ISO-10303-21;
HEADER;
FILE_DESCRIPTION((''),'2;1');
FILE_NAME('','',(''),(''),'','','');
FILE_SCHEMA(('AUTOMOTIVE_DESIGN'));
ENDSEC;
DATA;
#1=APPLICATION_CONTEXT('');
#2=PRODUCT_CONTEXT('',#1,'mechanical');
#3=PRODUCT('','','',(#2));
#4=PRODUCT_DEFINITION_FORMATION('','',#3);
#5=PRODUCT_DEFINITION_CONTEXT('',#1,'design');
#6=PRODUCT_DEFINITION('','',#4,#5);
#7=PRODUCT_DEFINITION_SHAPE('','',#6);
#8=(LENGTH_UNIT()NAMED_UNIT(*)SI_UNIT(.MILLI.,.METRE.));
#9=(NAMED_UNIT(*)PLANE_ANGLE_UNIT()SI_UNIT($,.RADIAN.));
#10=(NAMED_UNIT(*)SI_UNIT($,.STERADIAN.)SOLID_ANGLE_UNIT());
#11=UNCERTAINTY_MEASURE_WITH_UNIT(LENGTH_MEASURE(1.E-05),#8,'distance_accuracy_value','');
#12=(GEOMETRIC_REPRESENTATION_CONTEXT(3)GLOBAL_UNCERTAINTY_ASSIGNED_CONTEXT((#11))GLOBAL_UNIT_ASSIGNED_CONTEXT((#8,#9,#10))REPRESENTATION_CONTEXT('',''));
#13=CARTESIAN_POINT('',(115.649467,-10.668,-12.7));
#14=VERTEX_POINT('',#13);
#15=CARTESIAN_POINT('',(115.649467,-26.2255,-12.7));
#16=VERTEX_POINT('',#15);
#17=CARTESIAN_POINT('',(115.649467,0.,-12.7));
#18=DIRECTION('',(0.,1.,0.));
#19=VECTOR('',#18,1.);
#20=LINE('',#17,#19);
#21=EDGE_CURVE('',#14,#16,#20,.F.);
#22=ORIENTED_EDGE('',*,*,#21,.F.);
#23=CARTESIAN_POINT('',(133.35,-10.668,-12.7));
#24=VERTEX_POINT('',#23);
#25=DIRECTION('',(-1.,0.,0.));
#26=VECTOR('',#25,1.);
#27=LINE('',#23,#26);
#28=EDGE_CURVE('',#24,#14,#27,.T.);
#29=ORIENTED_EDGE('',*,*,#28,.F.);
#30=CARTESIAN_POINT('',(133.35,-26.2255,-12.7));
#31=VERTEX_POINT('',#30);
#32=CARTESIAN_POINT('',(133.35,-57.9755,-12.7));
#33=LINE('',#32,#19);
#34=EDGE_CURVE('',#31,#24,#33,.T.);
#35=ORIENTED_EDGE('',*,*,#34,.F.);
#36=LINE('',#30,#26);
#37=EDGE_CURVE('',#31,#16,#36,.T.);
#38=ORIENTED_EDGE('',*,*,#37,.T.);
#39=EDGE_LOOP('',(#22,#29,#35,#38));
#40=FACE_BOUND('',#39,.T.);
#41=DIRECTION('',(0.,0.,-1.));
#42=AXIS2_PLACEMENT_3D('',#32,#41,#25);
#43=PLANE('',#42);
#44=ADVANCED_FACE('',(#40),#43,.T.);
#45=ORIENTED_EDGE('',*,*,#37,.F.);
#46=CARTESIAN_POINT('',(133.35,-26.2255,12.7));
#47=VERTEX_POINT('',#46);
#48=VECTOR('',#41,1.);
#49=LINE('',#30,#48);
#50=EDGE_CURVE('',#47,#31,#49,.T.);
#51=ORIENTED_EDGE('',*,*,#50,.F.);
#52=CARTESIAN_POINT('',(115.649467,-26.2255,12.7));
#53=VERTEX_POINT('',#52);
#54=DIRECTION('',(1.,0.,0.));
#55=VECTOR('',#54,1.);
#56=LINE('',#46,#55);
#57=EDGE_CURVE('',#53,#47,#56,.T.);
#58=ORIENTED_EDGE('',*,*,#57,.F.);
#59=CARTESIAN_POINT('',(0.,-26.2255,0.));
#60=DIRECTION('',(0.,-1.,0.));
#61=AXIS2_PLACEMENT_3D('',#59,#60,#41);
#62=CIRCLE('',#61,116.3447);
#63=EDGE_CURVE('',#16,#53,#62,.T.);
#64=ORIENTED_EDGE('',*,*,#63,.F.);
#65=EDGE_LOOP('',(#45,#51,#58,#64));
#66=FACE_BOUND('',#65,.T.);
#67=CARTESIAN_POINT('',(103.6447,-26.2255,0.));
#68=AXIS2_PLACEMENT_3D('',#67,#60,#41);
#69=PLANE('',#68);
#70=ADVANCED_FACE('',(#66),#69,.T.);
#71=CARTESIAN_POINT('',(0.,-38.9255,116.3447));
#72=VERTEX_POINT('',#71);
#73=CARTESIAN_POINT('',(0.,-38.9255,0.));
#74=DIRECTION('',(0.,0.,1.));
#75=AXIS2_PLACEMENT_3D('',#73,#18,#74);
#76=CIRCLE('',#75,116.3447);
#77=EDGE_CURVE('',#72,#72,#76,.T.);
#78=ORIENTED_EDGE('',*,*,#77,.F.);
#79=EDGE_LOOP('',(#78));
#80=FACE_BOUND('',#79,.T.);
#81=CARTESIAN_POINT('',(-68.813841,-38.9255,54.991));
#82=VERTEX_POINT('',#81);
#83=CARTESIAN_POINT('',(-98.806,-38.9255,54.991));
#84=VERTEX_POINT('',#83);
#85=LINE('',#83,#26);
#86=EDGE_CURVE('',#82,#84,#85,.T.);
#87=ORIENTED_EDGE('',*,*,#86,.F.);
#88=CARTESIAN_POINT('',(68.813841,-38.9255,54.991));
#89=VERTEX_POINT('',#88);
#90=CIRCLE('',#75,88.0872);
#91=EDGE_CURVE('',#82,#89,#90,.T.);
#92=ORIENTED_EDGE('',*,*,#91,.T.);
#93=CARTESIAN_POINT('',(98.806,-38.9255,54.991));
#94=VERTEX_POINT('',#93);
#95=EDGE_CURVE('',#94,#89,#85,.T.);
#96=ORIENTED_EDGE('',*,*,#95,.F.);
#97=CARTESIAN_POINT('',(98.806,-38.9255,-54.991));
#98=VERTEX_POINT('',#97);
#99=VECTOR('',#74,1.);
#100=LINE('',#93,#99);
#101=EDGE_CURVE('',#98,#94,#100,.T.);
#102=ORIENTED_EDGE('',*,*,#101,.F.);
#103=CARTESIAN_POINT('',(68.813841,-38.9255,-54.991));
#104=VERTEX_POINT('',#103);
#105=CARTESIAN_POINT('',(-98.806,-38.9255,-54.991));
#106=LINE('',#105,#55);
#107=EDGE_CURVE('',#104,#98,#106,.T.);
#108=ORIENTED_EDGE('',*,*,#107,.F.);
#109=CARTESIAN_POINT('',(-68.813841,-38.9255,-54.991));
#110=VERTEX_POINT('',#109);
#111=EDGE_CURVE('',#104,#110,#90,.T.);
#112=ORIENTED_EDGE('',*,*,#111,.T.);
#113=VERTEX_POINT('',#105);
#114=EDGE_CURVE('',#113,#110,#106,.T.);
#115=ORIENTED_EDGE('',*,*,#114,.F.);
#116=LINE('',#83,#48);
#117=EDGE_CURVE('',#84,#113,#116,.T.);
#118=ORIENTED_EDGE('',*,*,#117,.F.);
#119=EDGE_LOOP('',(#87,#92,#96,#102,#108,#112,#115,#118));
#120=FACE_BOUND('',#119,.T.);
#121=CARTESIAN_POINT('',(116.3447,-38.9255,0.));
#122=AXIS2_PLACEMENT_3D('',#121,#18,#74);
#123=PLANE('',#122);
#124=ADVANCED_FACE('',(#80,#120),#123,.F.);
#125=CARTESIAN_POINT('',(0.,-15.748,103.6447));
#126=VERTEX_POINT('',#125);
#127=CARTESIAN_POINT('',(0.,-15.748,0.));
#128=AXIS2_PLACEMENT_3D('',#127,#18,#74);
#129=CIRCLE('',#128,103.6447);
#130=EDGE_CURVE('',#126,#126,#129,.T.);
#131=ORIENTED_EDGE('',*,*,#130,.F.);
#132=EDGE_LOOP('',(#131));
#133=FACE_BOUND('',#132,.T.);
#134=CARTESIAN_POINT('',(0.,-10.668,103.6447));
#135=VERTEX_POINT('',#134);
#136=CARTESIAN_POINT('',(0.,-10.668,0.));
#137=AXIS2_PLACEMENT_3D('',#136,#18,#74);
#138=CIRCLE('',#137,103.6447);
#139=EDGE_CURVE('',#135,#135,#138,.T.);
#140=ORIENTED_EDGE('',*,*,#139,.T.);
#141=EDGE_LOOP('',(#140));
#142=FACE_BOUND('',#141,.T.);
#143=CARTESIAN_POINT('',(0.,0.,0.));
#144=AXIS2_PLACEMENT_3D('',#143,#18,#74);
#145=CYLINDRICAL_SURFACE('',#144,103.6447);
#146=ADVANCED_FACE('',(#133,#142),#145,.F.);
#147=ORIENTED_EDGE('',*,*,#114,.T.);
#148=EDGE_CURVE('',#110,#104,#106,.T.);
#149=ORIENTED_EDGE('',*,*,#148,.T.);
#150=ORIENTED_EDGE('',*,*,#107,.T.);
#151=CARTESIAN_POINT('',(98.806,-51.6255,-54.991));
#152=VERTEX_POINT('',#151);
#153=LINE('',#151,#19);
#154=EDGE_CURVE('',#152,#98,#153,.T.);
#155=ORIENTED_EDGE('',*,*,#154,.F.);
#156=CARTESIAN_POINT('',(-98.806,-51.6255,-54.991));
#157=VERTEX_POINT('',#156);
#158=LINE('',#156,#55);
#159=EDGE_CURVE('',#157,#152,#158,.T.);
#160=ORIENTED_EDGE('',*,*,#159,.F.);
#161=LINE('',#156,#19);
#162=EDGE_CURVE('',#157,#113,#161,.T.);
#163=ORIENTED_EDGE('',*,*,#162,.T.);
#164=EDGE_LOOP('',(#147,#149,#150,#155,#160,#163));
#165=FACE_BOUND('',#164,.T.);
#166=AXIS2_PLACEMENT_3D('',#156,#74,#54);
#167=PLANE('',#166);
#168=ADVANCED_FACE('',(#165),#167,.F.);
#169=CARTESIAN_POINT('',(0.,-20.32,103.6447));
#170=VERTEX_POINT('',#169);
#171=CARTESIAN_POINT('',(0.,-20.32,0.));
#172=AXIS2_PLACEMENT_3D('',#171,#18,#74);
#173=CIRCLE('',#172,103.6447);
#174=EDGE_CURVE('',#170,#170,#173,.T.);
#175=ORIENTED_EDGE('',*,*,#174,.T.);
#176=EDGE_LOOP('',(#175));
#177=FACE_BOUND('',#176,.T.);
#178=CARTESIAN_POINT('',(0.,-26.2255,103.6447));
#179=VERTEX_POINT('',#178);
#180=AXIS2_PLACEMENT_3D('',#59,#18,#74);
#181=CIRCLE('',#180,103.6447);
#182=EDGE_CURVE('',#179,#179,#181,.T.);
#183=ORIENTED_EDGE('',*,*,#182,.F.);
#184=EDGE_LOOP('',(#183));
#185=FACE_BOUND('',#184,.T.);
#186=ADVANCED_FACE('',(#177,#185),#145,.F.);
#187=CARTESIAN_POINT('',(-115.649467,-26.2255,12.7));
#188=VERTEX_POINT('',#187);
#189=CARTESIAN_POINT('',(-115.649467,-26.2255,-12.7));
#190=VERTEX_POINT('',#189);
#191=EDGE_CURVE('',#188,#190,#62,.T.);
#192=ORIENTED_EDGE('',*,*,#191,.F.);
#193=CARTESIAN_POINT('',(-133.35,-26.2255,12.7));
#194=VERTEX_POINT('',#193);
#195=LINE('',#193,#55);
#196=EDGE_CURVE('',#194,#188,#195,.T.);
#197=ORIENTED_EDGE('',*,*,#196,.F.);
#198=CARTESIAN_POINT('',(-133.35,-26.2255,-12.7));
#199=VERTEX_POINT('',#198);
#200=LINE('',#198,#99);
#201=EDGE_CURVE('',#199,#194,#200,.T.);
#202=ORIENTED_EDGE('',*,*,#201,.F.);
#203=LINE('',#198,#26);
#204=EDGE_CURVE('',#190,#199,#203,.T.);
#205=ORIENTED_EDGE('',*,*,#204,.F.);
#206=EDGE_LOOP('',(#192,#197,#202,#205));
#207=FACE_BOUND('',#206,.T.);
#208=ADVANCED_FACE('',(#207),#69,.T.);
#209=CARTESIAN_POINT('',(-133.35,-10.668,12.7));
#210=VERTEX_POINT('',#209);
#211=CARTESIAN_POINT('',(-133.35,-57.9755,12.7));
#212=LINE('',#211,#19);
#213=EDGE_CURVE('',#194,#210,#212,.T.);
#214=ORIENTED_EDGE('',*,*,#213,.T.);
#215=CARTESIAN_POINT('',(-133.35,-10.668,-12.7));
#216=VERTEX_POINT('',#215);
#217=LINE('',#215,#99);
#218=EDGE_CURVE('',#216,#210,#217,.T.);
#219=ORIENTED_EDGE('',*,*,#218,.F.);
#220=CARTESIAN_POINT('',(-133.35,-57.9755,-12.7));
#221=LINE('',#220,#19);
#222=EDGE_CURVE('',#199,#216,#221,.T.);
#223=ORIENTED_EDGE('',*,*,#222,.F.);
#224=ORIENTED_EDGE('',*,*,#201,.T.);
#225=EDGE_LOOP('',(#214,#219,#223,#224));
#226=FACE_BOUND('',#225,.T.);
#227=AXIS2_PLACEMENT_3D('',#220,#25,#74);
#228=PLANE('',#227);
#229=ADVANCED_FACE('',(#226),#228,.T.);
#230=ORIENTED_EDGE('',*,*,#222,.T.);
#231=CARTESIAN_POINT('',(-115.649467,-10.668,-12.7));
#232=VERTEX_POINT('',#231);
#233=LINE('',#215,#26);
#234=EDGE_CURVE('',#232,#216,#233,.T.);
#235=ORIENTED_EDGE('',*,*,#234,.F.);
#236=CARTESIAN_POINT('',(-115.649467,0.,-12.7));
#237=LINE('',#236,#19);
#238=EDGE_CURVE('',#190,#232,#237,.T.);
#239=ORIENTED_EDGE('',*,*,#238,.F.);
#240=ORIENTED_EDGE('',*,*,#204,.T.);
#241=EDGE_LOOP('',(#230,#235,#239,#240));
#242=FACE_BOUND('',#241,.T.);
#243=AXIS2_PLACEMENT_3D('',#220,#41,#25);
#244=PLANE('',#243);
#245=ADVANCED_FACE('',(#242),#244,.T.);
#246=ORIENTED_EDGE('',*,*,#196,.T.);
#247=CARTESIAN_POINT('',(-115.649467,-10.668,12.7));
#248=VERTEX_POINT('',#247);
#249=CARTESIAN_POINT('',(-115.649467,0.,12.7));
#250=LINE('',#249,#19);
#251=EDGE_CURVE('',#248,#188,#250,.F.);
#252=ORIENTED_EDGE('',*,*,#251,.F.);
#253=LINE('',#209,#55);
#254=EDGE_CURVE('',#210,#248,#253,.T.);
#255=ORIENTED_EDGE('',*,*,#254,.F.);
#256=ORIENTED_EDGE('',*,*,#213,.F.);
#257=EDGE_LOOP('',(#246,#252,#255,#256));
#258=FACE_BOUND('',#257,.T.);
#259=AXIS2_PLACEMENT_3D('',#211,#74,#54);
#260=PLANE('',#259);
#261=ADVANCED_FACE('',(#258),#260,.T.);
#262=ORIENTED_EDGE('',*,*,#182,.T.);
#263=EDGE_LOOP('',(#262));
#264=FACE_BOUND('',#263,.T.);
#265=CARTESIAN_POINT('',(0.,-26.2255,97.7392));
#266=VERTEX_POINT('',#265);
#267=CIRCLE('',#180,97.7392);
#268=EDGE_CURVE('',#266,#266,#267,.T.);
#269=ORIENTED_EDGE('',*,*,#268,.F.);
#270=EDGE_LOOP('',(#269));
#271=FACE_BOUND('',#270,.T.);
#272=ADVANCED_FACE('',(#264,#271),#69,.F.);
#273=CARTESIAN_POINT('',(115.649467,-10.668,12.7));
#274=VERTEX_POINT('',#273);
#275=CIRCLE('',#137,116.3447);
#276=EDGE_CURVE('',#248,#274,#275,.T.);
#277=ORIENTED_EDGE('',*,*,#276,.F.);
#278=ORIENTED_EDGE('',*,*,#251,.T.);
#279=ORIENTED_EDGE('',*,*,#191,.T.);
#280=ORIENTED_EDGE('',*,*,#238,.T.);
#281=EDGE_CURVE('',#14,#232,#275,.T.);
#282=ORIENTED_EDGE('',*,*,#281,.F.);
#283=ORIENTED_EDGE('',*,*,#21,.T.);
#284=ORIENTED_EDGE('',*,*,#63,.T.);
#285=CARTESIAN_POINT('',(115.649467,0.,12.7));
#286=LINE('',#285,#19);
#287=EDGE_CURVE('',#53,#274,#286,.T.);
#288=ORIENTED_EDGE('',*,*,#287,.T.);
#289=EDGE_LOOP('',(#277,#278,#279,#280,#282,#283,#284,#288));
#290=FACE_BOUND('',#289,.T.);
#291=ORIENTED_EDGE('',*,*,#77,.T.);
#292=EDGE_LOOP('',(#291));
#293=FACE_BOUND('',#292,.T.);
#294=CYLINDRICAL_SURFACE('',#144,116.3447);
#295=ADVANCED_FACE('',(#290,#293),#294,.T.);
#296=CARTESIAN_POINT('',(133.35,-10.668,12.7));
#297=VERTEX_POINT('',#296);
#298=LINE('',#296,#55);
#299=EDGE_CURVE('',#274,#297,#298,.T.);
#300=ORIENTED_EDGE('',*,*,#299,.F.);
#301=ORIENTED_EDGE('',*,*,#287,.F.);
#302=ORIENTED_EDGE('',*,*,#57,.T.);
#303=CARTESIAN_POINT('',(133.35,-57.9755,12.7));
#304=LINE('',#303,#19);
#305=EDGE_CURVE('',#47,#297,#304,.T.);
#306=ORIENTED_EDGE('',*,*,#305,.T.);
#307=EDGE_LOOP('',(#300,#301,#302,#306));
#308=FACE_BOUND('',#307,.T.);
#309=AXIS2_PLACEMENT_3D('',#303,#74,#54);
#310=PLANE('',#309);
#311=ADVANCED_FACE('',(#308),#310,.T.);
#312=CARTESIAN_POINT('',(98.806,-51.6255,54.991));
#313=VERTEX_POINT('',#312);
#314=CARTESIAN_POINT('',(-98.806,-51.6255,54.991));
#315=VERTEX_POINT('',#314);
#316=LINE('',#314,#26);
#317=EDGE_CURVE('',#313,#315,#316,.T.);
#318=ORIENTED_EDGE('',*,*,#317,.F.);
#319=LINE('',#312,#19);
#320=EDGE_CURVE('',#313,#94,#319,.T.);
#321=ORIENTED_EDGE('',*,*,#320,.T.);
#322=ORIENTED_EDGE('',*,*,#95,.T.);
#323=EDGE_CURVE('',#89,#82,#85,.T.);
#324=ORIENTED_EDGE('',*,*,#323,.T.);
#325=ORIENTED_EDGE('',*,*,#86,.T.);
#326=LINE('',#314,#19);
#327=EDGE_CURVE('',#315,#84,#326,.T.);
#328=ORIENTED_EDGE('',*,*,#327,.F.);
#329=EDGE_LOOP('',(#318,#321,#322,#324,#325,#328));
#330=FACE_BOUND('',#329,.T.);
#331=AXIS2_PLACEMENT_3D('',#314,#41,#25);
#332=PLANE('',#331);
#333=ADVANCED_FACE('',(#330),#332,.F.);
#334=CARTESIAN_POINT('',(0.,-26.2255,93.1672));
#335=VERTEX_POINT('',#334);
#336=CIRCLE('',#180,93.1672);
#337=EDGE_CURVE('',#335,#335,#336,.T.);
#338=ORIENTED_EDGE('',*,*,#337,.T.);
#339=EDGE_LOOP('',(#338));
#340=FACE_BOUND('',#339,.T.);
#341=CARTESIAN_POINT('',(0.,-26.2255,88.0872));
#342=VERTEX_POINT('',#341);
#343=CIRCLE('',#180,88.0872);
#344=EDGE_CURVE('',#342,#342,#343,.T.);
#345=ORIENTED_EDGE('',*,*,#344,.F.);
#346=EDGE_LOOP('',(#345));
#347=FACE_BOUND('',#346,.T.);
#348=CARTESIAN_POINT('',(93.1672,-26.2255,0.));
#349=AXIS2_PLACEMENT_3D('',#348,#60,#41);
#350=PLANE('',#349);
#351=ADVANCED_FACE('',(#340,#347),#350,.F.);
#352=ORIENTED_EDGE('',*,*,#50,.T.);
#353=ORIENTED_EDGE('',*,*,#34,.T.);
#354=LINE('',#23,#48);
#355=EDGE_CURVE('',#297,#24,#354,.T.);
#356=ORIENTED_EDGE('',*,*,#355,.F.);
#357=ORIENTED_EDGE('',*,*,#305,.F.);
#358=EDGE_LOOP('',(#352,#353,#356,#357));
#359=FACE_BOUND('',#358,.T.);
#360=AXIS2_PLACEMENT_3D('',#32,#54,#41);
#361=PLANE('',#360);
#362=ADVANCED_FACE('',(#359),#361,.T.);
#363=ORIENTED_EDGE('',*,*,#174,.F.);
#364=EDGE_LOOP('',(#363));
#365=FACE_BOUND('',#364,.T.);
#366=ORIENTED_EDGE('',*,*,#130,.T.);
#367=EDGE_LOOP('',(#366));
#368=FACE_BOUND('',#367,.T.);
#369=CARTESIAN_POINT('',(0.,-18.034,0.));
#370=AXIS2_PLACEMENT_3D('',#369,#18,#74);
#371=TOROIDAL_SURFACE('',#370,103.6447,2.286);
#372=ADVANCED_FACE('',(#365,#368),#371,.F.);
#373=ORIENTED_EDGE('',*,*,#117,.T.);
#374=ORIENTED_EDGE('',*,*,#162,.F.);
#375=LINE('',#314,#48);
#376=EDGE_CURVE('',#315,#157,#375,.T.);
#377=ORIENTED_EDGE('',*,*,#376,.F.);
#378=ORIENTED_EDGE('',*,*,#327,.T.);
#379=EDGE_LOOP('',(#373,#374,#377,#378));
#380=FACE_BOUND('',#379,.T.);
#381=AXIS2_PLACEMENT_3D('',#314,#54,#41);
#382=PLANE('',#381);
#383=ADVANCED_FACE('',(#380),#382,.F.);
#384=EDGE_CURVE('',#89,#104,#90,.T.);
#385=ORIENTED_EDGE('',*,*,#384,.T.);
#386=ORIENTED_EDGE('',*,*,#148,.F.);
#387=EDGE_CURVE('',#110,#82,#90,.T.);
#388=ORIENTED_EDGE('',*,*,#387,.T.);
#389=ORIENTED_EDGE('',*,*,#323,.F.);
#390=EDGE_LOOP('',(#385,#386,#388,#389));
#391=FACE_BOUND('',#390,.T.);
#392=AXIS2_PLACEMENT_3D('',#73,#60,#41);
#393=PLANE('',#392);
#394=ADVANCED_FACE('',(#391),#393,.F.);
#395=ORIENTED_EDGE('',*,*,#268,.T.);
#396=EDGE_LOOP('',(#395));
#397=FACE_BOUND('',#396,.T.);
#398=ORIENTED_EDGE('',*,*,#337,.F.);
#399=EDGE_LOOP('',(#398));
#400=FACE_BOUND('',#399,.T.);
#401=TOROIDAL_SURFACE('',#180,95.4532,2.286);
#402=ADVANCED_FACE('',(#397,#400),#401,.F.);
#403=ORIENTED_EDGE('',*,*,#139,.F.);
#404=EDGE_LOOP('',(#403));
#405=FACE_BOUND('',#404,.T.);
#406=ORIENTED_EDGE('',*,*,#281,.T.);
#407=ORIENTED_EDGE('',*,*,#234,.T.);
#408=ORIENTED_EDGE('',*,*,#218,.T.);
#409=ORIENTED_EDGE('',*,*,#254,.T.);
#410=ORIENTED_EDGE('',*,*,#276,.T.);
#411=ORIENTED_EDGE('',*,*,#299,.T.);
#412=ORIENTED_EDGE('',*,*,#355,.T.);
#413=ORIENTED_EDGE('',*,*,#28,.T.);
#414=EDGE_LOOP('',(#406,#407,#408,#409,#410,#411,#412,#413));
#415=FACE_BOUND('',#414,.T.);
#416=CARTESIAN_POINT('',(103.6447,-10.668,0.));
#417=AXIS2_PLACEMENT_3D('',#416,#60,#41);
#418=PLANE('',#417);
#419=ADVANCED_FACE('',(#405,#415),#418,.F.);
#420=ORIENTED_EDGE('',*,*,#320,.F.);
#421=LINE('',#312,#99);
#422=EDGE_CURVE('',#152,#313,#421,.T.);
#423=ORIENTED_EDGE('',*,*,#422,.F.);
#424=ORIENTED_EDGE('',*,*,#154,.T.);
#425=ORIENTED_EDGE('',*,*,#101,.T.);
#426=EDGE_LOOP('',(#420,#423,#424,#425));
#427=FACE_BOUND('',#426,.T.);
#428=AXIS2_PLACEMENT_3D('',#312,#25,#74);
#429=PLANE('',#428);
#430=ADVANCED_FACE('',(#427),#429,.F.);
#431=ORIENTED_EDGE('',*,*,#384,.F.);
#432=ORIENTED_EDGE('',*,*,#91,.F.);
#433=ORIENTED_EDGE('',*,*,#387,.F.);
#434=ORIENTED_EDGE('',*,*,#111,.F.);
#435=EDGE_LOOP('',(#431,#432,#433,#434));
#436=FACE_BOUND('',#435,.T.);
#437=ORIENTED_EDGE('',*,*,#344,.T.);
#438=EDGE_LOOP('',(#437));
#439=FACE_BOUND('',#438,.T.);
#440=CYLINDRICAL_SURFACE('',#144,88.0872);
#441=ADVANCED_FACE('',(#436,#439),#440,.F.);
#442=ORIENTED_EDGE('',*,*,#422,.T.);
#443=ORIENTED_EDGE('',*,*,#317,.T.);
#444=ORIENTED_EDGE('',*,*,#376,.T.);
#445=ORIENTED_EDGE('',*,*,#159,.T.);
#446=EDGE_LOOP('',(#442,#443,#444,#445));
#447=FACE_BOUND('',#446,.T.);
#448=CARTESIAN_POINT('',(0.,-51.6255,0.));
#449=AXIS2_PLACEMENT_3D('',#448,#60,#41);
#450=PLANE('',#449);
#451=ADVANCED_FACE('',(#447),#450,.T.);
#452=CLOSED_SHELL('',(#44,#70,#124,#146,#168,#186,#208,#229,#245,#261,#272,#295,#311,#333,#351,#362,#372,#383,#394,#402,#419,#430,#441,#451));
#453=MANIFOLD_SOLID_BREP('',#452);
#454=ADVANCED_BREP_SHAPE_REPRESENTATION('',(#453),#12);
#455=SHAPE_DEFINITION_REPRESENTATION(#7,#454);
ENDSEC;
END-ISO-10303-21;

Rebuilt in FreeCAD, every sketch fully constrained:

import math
import FreeCAD as App
import Part
import Sketcher
Q = App.Units.Quantity


def add_polygon(sketch, points):
    """Adds a closed chain of lines whose ends are joined by coincident constraints."""
    first, n = sketch.GeometryCount, len(points)
    for a, b in zip(points, points[1:] + points[:1]):
        sketch.addGeometry(Part.LineSegment(App.Vector(*a, 0), App.Vector(*b, 0)), False)
    for i in range(n):
        sketch.addConstraint(Sketcher.Constraint("Coincident", first + i, 2, first + (i + 1) % n, 1))

doc = App.newDocument("Part")
body = doc.addObject("PartDesign::Body", "Body")

sketch1 = body.newObject("Sketcher::SketchObject", "Sketch")
sketch1.AttachmentSupport = (doc.getObject("XY_Plane"), [""])
sketch1.MapMode = "FlatFace"
sketch1.addGeometry([
    Part.LineSegment(App.Vector(103.6, -10.7, 0), App.Vector(103.6, -15.7, 0)),
    Part.ArcOfCircle(Part.Circle(App.Vector(103.6, -18, 0), App.Vector(0, 0, 1), 2.3), math.radians(-90), math.radians(90)),
    Part.LineSegment(App.Vector(103.6, -20.3, 0), App.Vector(103.6, -26.2, 0)),
    Part.LineSegment(App.Vector(103.6, -26.2, 0), App.Vector(97.7, -26.2, 0)),
    Part.ArcOfCircle(Part.Circle(App.Vector(95.5, -26.2, 0), App.Vector(0, 0, 1), 2.3), math.radians(180), math.radians(360)),
    Part.LineSegment(App.Vector(93.2, -26.2, 0), App.Vector(88.1, -26.2, 0)),
    Part.LineSegment(App.Vector(88.1, -26.2, 0), App.Vector(88.1, -38.9, 0)),
    Part.LineSegment(App.Vector(88.1, -38.9, 0), App.Vector(116.3, -38.9, 0)),
    Part.LineSegment(App.Vector(116.3, -38.9, 0), App.Vector(116.3, -10.7, 0)),
    Part.LineSegment(App.Vector(116.3, -10.7, 0), App.Vector(103.6, -10.7, 0)),
], False)
sketch1.addConstraint([
    Sketcher.Constraint("Coincident", 0, 2, 1, 2),
    Sketcher.Constraint("Coincident", 1, 1, 2, 1),
    Sketcher.Constraint("Coincident", 2, 2, 3, 1),
    Sketcher.Constraint("Coincident", 3, 2, 4, 2),
    Sketcher.Constraint("Coincident", 4, 1, 5, 1),
    Sketcher.Constraint("Coincident", 5, 2, 6, 1),
    Sketcher.Constraint("Coincident", 6, 2, 7, 1),
    Sketcher.Constraint("Coincident", 7, 2, 8, 1),
    Sketcher.Constraint("Coincident", 8, 2, 9, 1),
    Sketcher.Constraint("Coincident", 9, 2, 0, 1),
    Sketcher.Constraint("Vertical", 0),
    Sketcher.Constraint("Vertical", 2),
    Sketcher.Constraint("Horizontal", 3),
    Sketcher.Constraint("Horizontal", 5),
    Sketcher.Constraint("Vertical", 6),
    Sketcher.Constraint("Horizontal", 7),
    Sketcher.Constraint("Vertical", 8),
    Sketcher.Constraint("Horizontal", 9),
    Sketcher.Constraint("Equal", 1, 4),
    Sketcher.Constraint("Horizontal", 4, 3, 2, 2),
    Sketcher.Constraint("Horizontal", 3, 2, 4, 1),
    Sketcher.Constraint("Vertical", 1, 3, 0, 2),
    Sketcher.Constraint("Vertical", 0, 2, 1, 1),
    Sketcher.Constraint("Equal", 5, 0),
    Sketcher.Constraint("Equal", 3, 2),
    Sketcher.Constraint("Equal", 9, 6),
    Sketcher.Constraint("Radius", 1, Q("0.09 in")),
    Sketcher.Constraint("DistanceX", 5, 2, 5, 1, Q("0.2 in")),
    Sketcher.Constraint("DistanceX", 9, 2, 9, 1, Q("0.5 in")),
    Sketcher.Constraint("DistanceY", 1, 1, -1, 1, Q("0.8 in")),
    Sketcher.Constraint("DistanceX", 3, 2, 3, 1, Q("0.2325 in")),
    Sketcher.Constraint("DistanceX", -1, 1, 4, 3, Q("3.758 in")),
])
revolution = body.newObject("PartDesign::Revolution", "Revolution")
revolution.Profile = sketch1
revolution.ReferenceAxis = (sketch1, ["V_Axis"])
revolution.Angle = 360

sketch2 = body.newObject("Sketcher::SketchObject", "Sketch001")
sketch2.AttachmentSupport = (doc.getObject("XZ_Plane"), [""])
sketch2.MapMode = "FlatFace"
sketch2.AttachmentOffset = App.Placement(App.Vector(0, 0, 1.5325 * 25.4), App.Rotation())
add_polygon(sketch2, [(-99, 55), (-99, -55), (99, -55), (99, 55)])
sketch2.addConstraint([
    Sketcher.Constraint("Vertical", 0),
    Sketcher.Constraint("Horizontal", 1),
    Sketcher.Constraint("Vertical", 2),
    Sketcher.Constraint("Horizontal", 3),
    Sketcher.Constraint("Symmetric", 0, 2, 2, 2, -1, 1),
    Sketcher.Constraint("DistanceX", 1, 1, 1, 2, Q("7.78 in")),
    Sketcher.Constraint("DistanceY", 0, 2, 0, 1, Q("4.33 in")),
])
pad1 = body.newObject("PartDesign::Pad", "Pad")
pad1.Profile = sketch2
pad1.Length = Q("0.5 in")

sketch3 = body.newObject("Sketcher::SketchObject", "Sketch002")
sketch3.AttachmentSupport = (doc.getObject("XZ_Plane"), [""])
sketch3.MapMode = "FlatFace"
sketch3.AttachmentOffset = App.Placement(App.Vector(0, 0, 0.42 * 25.4), App.Rotation())
add_polygon(sketch3, [(114, -13), (114, 13), (133, 13), (133, -13)])
add_polygon(sketch3, [(-133, -13), (-133, 13), (-114, 13), (-114, -13)])
sketch3.addConstraint([
    Sketcher.Constraint("Vertical", 0),
    Sketcher.Constraint("Horizontal", 1),
    Sketcher.Constraint("Vertical", 2),
    Sketcher.Constraint("Horizontal", 3),
    Sketcher.Constraint("Vertical", 4),
    Sketcher.Constraint("Horizontal", 5),
    Sketcher.Constraint("Vertical", 6),
    Sketcher.Constraint("Horizontal", 7),
    Sketcher.Constraint("Symmetric", 2, 2, 4, 2, -1, 1),
    Sketcher.Constraint("Symmetric", 0, 2, 6, 2, -1, 1),
    Sketcher.Constraint("Horizontal", 1, 2, 4, 2),
    Sketcher.Constraint("DistanceY", 0, 1, 0, 2, Q("1 in")),
    Sketcher.Constraint("DistanceX", 5, 2, 0, 2, Q("9 in")),
    Sketcher.Constraint("DistanceX", 1, 1, 1, 2, Q("0.75 in")),
])
pad2 = body.newObject("PartDesign::Pad", "Pad001")
pad2.Profile = sketch3
pad2.Length = Q("0.6125 in")

doc.recompute()
